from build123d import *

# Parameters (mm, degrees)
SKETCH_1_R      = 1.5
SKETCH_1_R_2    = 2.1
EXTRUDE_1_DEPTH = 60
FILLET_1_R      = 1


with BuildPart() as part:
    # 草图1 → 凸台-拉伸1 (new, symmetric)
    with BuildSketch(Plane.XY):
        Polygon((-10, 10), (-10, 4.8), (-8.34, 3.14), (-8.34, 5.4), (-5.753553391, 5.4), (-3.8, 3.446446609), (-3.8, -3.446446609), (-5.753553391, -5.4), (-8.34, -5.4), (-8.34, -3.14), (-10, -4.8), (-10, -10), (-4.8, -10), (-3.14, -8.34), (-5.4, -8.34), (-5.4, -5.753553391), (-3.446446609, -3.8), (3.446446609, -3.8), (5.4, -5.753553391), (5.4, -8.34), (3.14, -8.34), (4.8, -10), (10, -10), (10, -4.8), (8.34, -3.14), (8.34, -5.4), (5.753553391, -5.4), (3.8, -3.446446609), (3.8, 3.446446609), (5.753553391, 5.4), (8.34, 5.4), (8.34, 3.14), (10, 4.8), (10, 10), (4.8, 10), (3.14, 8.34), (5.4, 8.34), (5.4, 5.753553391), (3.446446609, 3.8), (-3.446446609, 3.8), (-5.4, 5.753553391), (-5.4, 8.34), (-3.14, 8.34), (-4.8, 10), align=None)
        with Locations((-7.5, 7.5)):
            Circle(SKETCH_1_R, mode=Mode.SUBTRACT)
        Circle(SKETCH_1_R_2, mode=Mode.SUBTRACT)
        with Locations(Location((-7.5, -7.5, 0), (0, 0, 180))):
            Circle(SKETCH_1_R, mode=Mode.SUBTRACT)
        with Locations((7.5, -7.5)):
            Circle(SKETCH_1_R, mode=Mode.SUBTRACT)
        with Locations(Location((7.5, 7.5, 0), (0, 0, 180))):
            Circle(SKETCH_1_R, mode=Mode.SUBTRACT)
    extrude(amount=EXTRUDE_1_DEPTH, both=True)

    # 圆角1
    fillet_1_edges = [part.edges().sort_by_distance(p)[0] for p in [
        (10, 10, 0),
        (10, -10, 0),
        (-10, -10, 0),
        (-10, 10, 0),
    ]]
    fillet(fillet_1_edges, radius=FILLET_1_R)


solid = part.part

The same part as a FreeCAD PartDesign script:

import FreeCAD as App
import Part
import Sketcher

V = App.Vector


def edges_at(feature, points):
    """Names of the edges that pass closest to the given points."""
    edges = feature.Shape.Edges
    near = lambda p: min(range(len(edges)), key=lambda i: edges[i].distToShape(Part.Vertex(*p))[0])
    return sorted({f"Edge{near(p) + 1}" for p in points})

doc = App.newDocument("Part")
body = doc.addObject("PartDesign::Body", "Body")

# Sketch on XY plane
sketch1 = doc.addObject("Sketcher::SketchObject", "Sketch")
body.addObject(sketch1)
sketch1.AttachmentSupport = (doc.XY_Plane, [""])
sketch1.MapMode = "FlatFace"
sketch1.addGeometry(Part.LineSegment(V(-10, 10, 0), V(-10, 4.8, 0)), False)
sketch1.addGeometry(Part.LineSegment(V(-10, 4.8, 0), V(-8.3, 3.1, 0)), False)
sketch1.addGeometry(Part.LineSegment(V(-8.3, 3.1, 0), V(-8.3, 5.4, 0)), False)
sketch1.addGeometry(Part.LineSegment(V(-8.3, 5.4, 0), V(-5.8, 5.4, 0)), False)
sketch1.addGeometry(Part.LineSegment(V(-5.8, 5.4, 0), V(-3.8, 3.4, 0)), False)
sketch1.addGeometry(Part.LineSegment(V(-3.8, 3.4, 0), V(-3.8, -3.4, 0)), False)
sketch1.addGeometry(Part.LineSegment(V(-3.8, -3.4, 0), V(-5.8, -5.4, 0)), False)
sketch1.addGeometry(Part.LineSegment(V(-5.8, -5.4, 0), V(-8.3, -5.4, 0)), False)
sketch1.addGeometry(Part.LineSegment(V(-8.3, -5.4, 0), V(-8.3, -3.1, 0)), False)
sketch1.addGeometry(Part.LineSegment(V(-8.3, -3.1, 0), V(-10, -4.8, 0)), False)
sketch1.addGeometry(Part.LineSegment(V(-10, -4.8, 0), V(-10, -10, 0)), False)
sketch1.addGeometry(Part.LineSegment(V(-10, -10, 0), V(-4.8, -10, 0)), False)
sketch1.addGeometry(Part.LineSegment(V(-4.8, -10, 0), V(-3.1, -8.3, 0)), False)
sketch1.addGeometry(Part.LineSegment(V(-3.1, -8.3, 0), V(-5.4, -8.3, 0)), False)
sketch1.addGeometry(Part.LineSegment(V(-5.4, -8.3, 0), V(-5.4, -5.8, 0)), False)
sketch1.addGeometry(Part.LineSegment(V(-5.4, -5.8, 0), V(-3.4, -3.8, 0)), False)
sketch1.addGeometry(Part.LineSegment(V(-3.4, -3.8, 0), V(3.4, -3.8, 0)), False)
sketch1.addGeometry(Part.LineSegment(V(3.4, -3.8, 0), V(5.4, -5.8, 0)), False)
sketch1.addGeometry(Part.LineSegment(V(5.4, -5.8, 0), V(5.4, -8.3, 0)), False)
sketch1.addGeometry(Part.LineSegment(V(5.4, -8.3, 0), V(3.1, -8.3, 0)), False)
sketch1.addGeometry(Part.LineSegment(V(3.1, -8.3, 0), V(4.8, -10, 0)), False)
sketch1.addGeometry(Part.LineSegment(V(4.8, -10, 0), V(10, -10, 0)), False)
sketch1.addGeometry(Part.LineSegment(V(10, -10, 0), V(10, -4.8, 0)), False)
sketch1.addGeometry(Part.LineSegment(V(10, -4.8, 0), V(8.3, -3.1, 0)), False)
sketch1.addGeometry(Part.LineSegment(V(8.3, -3.1, 0), V(8.3, -5.4, 0)), False)
sketch1.addGeometry(Part.LineSegment(V(8.3, -5.4, 0), V(5.8, -5.4, 0)), False)
sketch1.addGeometry(Part.LineSegment(V(5.8, -5.4, 0), V(3.8, -3.4, 0)), False)
sketch1.addGeometry(Part.LineSegment(V(3.8, -3.4, 0), V(3.8, 3.4, 0)), False)
sketch1.addGeometry(Part.LineSegment(V(3.8, 3.4, 0), V(5.8, 5.4, 0)), False)
sketch1.addGeometry(Part.LineSegment(V(5.8, 5.4, 0), V(8.3, 5.4, 0)), False)
sketch1.addGeometry(Part.LineSegment(V(8.3, 5.4, 0), V(8.3, 3.1, 0)), False)
sketch1.addGeometry(Part.LineSegment(V(8.3, 3.1, 0), V(10, 4.8, 0)), False)
sketch1.addGeometry(Part.LineSegment(V(10, 4.8, 0), V(10, 10, 0)), False)
sketch1.addGeometry(Part.LineSegment(V(10, 10, 0), V(4.8, 10, 0)), False)
sketch1.addGeometry(Part.LineSegment(V(4.8, 10, 0), V(3.1, 8.3, 0)), False)
sketch1.addGeometry(Part.LineSegment(V(3.1, 8.3, 0), V(5.4, 8.3, 0)), False)
sketch1.addGeometry(Part.LineSegment(V(5.4, 8.3, 0), V(5.4, 5.8, 0)), False)
sketch1.addGeometry(Part.LineSegment(V(5.4, 5.8, 0), V(3.4, 3.8, 0)), False)
sketch1.addGeometry(Part.LineSegment(V(3.4, 3.8, 0), V(-3.4, 3.8, 0)), False)
sketch1.addGeometry(Part.LineSegment(V(-3.4, 3.8, 0), V(-5.4, 5.8, 0)), False)
sketch1.addGeometry(Part.LineSegment(V(-5.4, 5.8, 0), V(-5.4, 8.3, 0)), False)
sketch1.addGeometry(Part.LineSegment(V(-5.4, 8.3, 0), V(-3.1, 8.3, 0)), False)
sketch1.addGeometry(Part.LineSegment(V(-3.1, 8.3, 0), V(-4.8, 10, 0)), False)
sketch1.addGeometry(Part.LineSegment(V(-4.8, 10, 0), V(-10, 10, 0)), False)
sketch1.addGeometry(Part.Circle(V(-7.5, -7.5, 0), V(0, 0, 1), 1.5), False)
sketch1.addGeometry(Part.Circle(V(7.5, -7.5, 0), V(0, 0, 1), 1.5), False)
sketch1.addGeometry(Part.Circle(V(-7.5, 7.5, 0), V(0, 0, 1), 1.5), False)
sketch1.addGeometry(Part.Circle(V(0, 0, 0), V(0, 0, 1), 2.1), False)
sketch1.addGeometry(Part.Circle(V(7.5, 7.5, 0), V(0, 0, 1), 1.5), False)
sketch1.addConstraint(Sketcher.Constraint("Coincident", 0, 2, 1, 1))
sketch1.addConstraint(Sketcher.Constraint("Coincident", 1, 2, 2, 1))
sketch1.addConstraint(Sketcher.Constraint("Coincident", 2, 2, 3, 1))
sketch1.addConstraint(Sketcher.Constraint("Coincident", 3, 2, 4, 1))
sketch1.addConstraint(Sketcher.Constraint("Coincident", 4, 2, 5, 1))
sketch1.addConstraint(Sketcher.Constraint("Coincident", 5, 2, 6, 1))
sketch1.addConstraint(Sketcher.Constraint("Coincident", 6, 2, 7, 1))
sketch1.addConstraint(Sketcher.Constraint("Coincident", 7, 2, 8, 1))
sketch1.addConstraint(Sketcher.Constraint("Coincident", 8, 2, 9, 1))
sketch1.addConstraint(Sketcher.Constraint("Coincident", 9, 2, 10, 1))
sketch1.addConstraint(Sketcher.Constraint("Coincident", 10, 2, 11, 1))
sketch1.addConstraint(Sketcher.Constraint("Coincident", 11, 2, 12, 1))
sketch1.addConstraint(Sketcher.Constraint("Coincident", 12, 2, 13, 1))
sketch1.addConstraint(Sketcher.Constraint("Coincident", 13, 2, 14, 1))
sketch1.addConstraint(Sketcher.Constraint("Coincident", 14, 2, 15, 1))
sketch1.addConstraint(Sketcher.Constraint("Coincident", 15, 2, 16, 1))
sketch1.addConstraint(Sketcher.Constraint("Coincident", 16, 2, 17, 1))
sketch1.addConstraint(Sketcher.Constraint("Coincident", 17, 2, 18, 1))
sketch1.addConstraint(Sketcher.Constraint("Coincident", 18, 2, 19, 1))
sketch1.addConstraint(Sketcher.Constraint("Coincident", 19, 2, 20, 1))
sketch1.addConstraint(Sketcher.Constraint("Coincident", 20, 2, 21, 1))
sketch1.addConstraint(Sketcher.Constraint("Coincident", 21, 2, 22, 1))
sketch1.addConstraint(Sketcher.Constraint("Coincident", 22, 2, 23, 1))
sketch1.addConstraint(Sketcher.Constraint("Coincident", 23, 2, 24, 1))
sketch1.addConstraint(Sketcher.Constraint("Coincident", 24, 2, 25, 1))
sketch1.addConstraint(Sketcher.Constraint("Coincident", 25, 2, 26, 1))
sketch1.addConstraint(Sketcher.Constraint("Coincident", 26, 2, 27, 1))
sketch1.addConstraint(Sketcher.Constraint("Coincident", 27, 2, 28, 1))
sketch1.addConstraint(Sketcher.Constraint("Coincident", 28, 2, 29, 1))
sketch1.addConstraint(Sketcher.Constraint("Coincident", 29, 2, 30, 1))
sketch1.addConstraint(Sketcher.Constraint("Coincident", 30, 2, 31, 1))
sketch1.addConstraint(Sketcher.Constraint("Coincident", 31, 2, 32, 1))
sketch1.addConstraint(Sketcher.Constraint("Coincident", 32, 2, 33, 1))
sketch1.addConstraint(Sketcher.Constraint("Coincident", 33, 2, 34, 1))
sketch1.addConstraint(Sketcher.Constraint("Coincident", 34, 2, 35, 1))
sketch1.addConstraint(Sketcher.Constraint("Coincident", 35, 2, 36, 1))
sketch1.addConstraint(Sketcher.Constraint("Coincident", 36, 2, 37, 1))
sketch1.addConstraint(Sketcher.Constraint("Coincident", 37, 2, 38, 1))
sketch1.addConstraint(Sketcher.Constraint("Coincident", 38, 2, 39, 1))
sketch1.addConstraint(Sketcher.Constraint("Coincident", 39, 2, 40, 1))
sketch1.addConstraint(Sketcher.Constraint("Coincident", 40, 2, 41, 1))
sketch1.addConstraint(Sketcher.Constraint("Coincident", 41, 2, 42, 1))
sketch1.addConstraint(Sketcher.Constraint("Coincident", 42, 2, 43, 1))
sketch1.addConstraint(Sketcher.Constraint("Coincident", 43, 2, 0, 1))
sketch1.addConstraint(Sketcher.Constraint("Vertical", 0))
sketch1.addConstraint(Sketcher.Constraint("Vertical", 2))
sketch1.addConstraint(Sketcher.Constraint("Horizontal", 3))
sketch1.addConstraint(Sketcher.Constraint("Vertical", 5))
sketch1.addConstraint(Sketcher.Constraint("Horizontal", 7))
sketch1.addConstraint(Sketcher.Constraint("Vertical", 8))
sketch1.addConstraint(Sketcher.Constraint("Vertical", 10))
sketch1.addConstraint(Sketcher.Constraint("Horizontal", 11))
sketch1.addConstraint(Sketcher.Constraint("Horizontal", 13))
sketch1.addConstraint(Sketcher.Constraint("Vertical", 14))
sketch1.addConstraint(Sketcher.Constraint("Horizontal", 16))
sketch1.addConstraint(Sketcher.Constraint("Vertical", 18))
sketch1.addConstraint(Sketcher.Constraint("Horizontal", 19))
sketch1.addConstraint(Sketcher.Constraint("Horizontal", 21))
sketch1.addConstraint(Sketcher.Constraint("Vertical", 22))
sketch1.addConstraint(Sketcher.Constraint("Vertical", 24))
sketch1.addConstraint(Sketcher.Constraint("Horizontal", 25))
sketch1.addConstraint(Sketcher.Constraint("Vertical", 27))
sketch1.addConstraint(Sketcher.Constraint("Horizontal", 29))
sketch1.addConstraint(Sketcher.Constraint("Vertical", 30))
sketch1.addConstraint(Sketcher.Constraint("Vertical", 32))
sketch1.addConstraint(Sketcher.Constraint("Horizontal", 33))
sketch1.addConstraint(Sketcher.Constraint("Horizontal", 35))
sketch1.addConstraint(Sketcher.Constraint("Vertical", 36))
sketch1.addConstraint(Sketcher.Constraint("Horizontal", 38))
sketch1.addConstraint(Sketcher.Constraint("Vertical", 40))
sketch1.addConstraint(Sketcher.Constraint("Horizontal", 41))
sketch1.addConstraint(Sketcher.Constraint("Horizontal", 43))
sketch1.addConstraint(Sketcher.Constraint("Coincident", 47, 3, -1, 1))
sketch1.addConstraint(Sketcher.Constraint("Equal", 44, 45))
sketch1.addConstraint(Sketcher.Constraint("Equal", 45, 46))
sketch1.addConstraint(Sketcher.Constraint("Equal", 46, 48))
sketch1.addConstraint(Sketcher.Constraint("Symmetric", 45, 3, 46, 3, -1, 1))
sketch1.addConstraint(Sketcher.Constraint("Symmetric", 44, 3, 48, 3, -1, 1))
sketch1.addConstraint(Sketcher.Constraint("Symmetric", 0, 2, 22, 2, -1, 1))
sketch1.addConstraint(Sketcher.Constraint("Symmetric", 1, 2, 23, 2, -1, 1))
sketch1.addConstraint(Sketcher.Constraint("Symmetric", 3, 2, 25, 2, -1, 1))
sketch1.addConstraint(Sketcher.Constraint("Symmetric", 4, 2, 26, 2, -1, 1))
sketch1.addConstraint(Sketcher.Constraint("Symmetric", 6, 2, 28, 2, -1, 1))
sketch1.addConstraint(Sketcher.Constraint("Symmetric", 8, 2, 30, 2, -1, 1))
sketch1.addConstraint(Sketcher.Constraint("Symmetric", 9, 2, 31, 2, -1, 1))
sketch1.addConstraint(Sketcher.Constraint("Symmetric", 11, 2, 33, 2, -1, 1))
sketch1.addConstraint(Sketcher.Constraint("Symmetric", 12, 2, 34, 2, -1, 1))
sketch1.addConstraint(Sketcher.Constraint("Symmetric", 14, 2, 36, 2, -1, 1))
sketch1.addConstraint(Sketcher.Constraint("Symmetric", 15, 2, 37, 2, -1, 1))
sketch1.addConstraint(Sketcher.Constraint("Symmetric", 17, 2, 39, 2, -1, 1))
sketch1.addConstraint(Sketcher.Constraint("Symmetric", 19, 2, 41, 2, -1, 1))
sketch1.addConstraint(Sketcher.Constraint("Symmetric", 20, 2, 42, 2, -1, 1))
sketch1.addConstraint(Sketcher.Constraint("Symmetric", 44, 3, 45, 3, -2))
sketch1.addConstraint(Sketcher.Constraint("Symmetric", 14, 2, 17, 2, -2))
sketch1.addConstraint(Sketcher.Constraint("Symmetric", 12, 2, 19, 2, -2))
sketch1.addConstraint(Sketcher.Constraint("Symmetric", 11, 2, 20, 2, -2))
sketch1.addConstraint(Sketcher.Constraint("Symmetric", 9, 2, 22, 2, -2))
sketch1.addConstraint(Sketcher.Constraint("Symmetric", 8, 2, 23, 2, -2))
sketch1.addConstraint(Sketcher.Constraint("Symmetric", 6, 2, 25, 2, -2))
sketch1.addConstraint(Sketcher.Constraint("Parallel", 1, 4))
sketch1.addConstraint(Sketcher.Constraint("Perpendicular", 4, 6))
sketch1.addConstraint(Sketcher.Constraint("Parallel", 6, 9))
sketch1.addConstraint(Sketcher.Constraint("Parallel", 9, 12))
sketch1.addConstraint(Sketcher.Constraint("Parallel", 12, 15))
sketch1.addConstraint(Sketcher.Constraint("Perpendicular", 15, 17))
sketch1.addConstraint(Sketcher.Constraint("Perpendicular", 26, 28))
sketch1.addConstraint(Sketcher.Constraint("Perpendicular", 37, 39))
sketch1.addConstraint(Sketcher.Constraint("Equal", 43, 0))
sketch1.addConstraint(Sketcher.Constraint("Equal", 41, 2))
sketch1.addConstraint(Sketcher.Constraint("Equal", 38, 5))
sketch1.addConstraint(Sketcher.Constraint("Equal", 29, 14))
sketch1.addConstraint(Sketcher.Constraint("Equal", 9, 12))
sketch1.addConstraint(Sketcher.Constraint("Equal", 6, 15))
sketch1.addConstraint(Sketcher.Constraint("Diameter", 44, 3.0))
sketch1.addConstraint(Sketcher.Constraint("Diameter", 47, 4.2))
sketch1.addConstraint(Sketcher.Constraint("DistanceX", 11, 1, 11, 2, 5.2))
sketch1.addConstraint(Sketcher.Constraint("DistanceX", 0, 2, -1, 1, 10.0))
sketch1.addConstraint(Sketcher.Constraint("DistanceX", 44, 3, 45, 3, 15.0))
sketch1.addConstraint(Sketcher.Constraint("DistanceY", 44, 3, 46, 3, 15.0))
sketch1.addConstraint(Sketcher.Constraint("DistanceX", 11, 2, 5, 2, 1.0))
sketch1.addConstraint(Sketcher.Constraint("DistanceX", 13, 2, 13, 1, 2.26))
sketch1.addConstraint(Sketcher.Constraint("DistanceY", -1, 1, 2, 2, 5.4))
sketch1.addConstraint(Sketcher.Constraint("Distance", 4, 2.762742))
pad1 = doc.addObject("PartDesign::Pad", "Pad")
body.addObject(pad1)
pad1.Profile = sketch1
pad1.Length = 120
pad1.Midplane = True
doc.recompute()

fillet = doc.addObject("PartDesign::Fillet", "Fillet")
body.addObject(fillet)
fillet.Base = (pad1, edges_at(pad1, [
    (10, 10, 0),
    (10, -10, 0),
    (-10, -10, 0),
    (-10, 10, 0),
]))
fillet.Radius = 1

doc.recompute()
